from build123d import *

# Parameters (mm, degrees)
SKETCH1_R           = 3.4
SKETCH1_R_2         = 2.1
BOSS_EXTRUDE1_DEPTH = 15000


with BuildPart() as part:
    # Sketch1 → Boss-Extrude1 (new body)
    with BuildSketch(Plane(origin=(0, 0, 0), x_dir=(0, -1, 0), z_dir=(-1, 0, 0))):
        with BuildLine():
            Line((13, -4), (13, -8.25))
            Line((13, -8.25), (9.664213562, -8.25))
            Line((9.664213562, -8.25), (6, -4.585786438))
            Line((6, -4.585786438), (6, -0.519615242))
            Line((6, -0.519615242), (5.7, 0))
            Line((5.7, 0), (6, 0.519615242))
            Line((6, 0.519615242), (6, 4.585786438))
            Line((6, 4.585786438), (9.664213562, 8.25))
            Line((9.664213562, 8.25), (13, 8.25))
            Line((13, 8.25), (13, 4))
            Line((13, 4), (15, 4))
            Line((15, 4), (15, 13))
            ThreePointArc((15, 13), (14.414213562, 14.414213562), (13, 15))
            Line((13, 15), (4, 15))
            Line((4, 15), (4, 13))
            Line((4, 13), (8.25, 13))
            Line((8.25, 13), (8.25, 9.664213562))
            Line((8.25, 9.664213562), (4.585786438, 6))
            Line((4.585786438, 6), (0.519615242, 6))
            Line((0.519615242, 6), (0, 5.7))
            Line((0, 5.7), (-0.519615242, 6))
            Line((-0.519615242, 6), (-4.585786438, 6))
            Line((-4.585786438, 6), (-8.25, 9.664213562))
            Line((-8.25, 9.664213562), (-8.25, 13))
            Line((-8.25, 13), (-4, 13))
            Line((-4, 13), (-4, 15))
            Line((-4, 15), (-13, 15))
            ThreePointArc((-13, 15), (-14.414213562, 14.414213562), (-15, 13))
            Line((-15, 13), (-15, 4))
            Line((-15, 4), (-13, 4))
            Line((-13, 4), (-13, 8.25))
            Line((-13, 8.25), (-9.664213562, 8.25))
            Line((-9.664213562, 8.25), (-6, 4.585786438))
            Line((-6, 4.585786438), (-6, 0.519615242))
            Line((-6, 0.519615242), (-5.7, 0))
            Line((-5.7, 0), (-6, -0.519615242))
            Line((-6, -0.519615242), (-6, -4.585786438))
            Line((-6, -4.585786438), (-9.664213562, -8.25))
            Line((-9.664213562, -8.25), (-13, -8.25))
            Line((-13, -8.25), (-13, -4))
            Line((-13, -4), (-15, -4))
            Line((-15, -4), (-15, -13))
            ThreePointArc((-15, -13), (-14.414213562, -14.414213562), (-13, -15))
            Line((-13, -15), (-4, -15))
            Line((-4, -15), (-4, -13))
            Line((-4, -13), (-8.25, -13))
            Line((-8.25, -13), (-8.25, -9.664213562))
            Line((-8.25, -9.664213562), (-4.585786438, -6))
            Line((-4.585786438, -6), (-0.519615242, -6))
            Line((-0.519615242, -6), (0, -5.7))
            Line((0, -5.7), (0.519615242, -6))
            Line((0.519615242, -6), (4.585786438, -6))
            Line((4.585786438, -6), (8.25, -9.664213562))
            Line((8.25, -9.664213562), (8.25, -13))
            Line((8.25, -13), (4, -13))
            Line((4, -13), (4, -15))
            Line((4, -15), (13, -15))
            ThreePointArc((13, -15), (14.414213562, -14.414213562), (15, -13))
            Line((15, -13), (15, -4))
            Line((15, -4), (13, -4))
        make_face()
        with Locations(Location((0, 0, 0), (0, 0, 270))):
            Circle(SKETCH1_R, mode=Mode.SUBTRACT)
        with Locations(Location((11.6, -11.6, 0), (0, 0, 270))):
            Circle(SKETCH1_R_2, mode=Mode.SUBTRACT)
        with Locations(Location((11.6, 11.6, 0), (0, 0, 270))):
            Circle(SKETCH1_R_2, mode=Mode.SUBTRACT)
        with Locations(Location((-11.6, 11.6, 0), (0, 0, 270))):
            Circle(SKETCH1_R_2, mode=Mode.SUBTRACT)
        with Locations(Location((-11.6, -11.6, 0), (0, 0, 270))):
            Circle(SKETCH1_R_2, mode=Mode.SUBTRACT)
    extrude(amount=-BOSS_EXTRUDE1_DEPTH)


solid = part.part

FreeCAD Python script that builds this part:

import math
import FreeCAD as App
import Part
import Sketcher
Q = App.Units.Quantity

doc = App.newDocument("Part")
body = doc.addObject("PartDesign::Body", "Body")

sketch1 = body.newObject("Sketcher::SketchObject", "Sketch")
sketch1.AttachmentSupport = (doc.getObject("YZ_Plane"), [""])
sketch1.MapMode = "FlatFace"
sketch1.addGeometry([
    Part.LineSegment(App.Vector(-13, -4, 0), App.Vector(-13, -8.2, 0)),
    Part.LineSegment(App.Vector(-13, -8.2, 0), App.Vector(-9.7, -8.2, 0)),
    Part.LineSegment(App.Vector(-9.7, -8.2, 0), App.Vector(-6, -4.6, 0)),
    Part.LineSegment(App.Vector(-6, -4.6, 0), App.Vector(-6, -0.5, 0)),
    Part.LineSegment(App.Vector(-6, -0.5, 0), App.Vector(-5.7, 0, 0)),
    Part.LineSegment(App.Vector(-5.7, 0, 0), App.Vector(-6, 0.5, 0)),
    Part.LineSegment(App.Vector(-6, 0.5, 0), App.Vector(-6, 4.6, 0)),
    Part.LineSegment(App.Vector(-6, 4.6, 0), App.Vector(-9.7, 8.2, 0)),
    Part.LineSegment(App.Vector(-9.7, 8.2, 0), App.Vector(-13, 8.2, 0)),
    Part.LineSegment(App.Vector(-13, 8.2, 0), App.Vector(-13, 4, 0)),
    Part.LineSegment(App.Vector(-13, 4, 0), App.Vector(-15, 4, 0)),
    Part.LineSegment(App.Vector(-15, 4, 0), App.Vector(-15, 13, 0)),
    Part.ArcOfCircle(Part.Circle(App.Vector(-13, 13, 0), App.Vector(0, 0, 1), 2), math.radians(90), math.radians(180)),
    Part.LineSegment(App.Vector(-13, 15, 0), App.Vector(-4, 15, 0)),
    Part.LineSegment(App.Vector(-4, 15, 0), App.Vector(-4, 13, 0)),
    Part.LineSegment(App.Vector(-4, 13, 0), App.Vector(-8.2, 13, 0)),
    Part.LineSegment(App.Vector(-8.2, 13, 0), App.Vector(-8.2, 9.7, 0)),
    Part.LineSegment(App.Vector(-8.2, 9.7, 0), App.Vector(-4.6, 6, 0)),
    Part.LineSegment(App.Vector(-4.6, 6, 0), App.Vector(-0.5, 6, 0)),
    Part.LineSegment(App.Vector(-0.5, 6, 0), App.Vector(0, 5.7, 0)),
    Part.LineSegment(App.Vector(0, 5.7, 0), App.Vector(0.5, 6, 0)),
    Part.LineSegment(App.Vector(0.5, 6, 0), App.Vector(4.6, 6, 0)),
    Part.LineSegment(App.Vector(4.6, 6, 0), App.Vector(8.2, 9.7, 0)),
    Part.LineSegment(App.Vector(8.2, 9.7, 0), App.Vector(8.2, 13, 0)),
    Part.LineSegment(App.Vector(8.2, 13, 0), App.Vector(4, 13, 0)),
    Part.LineSegment(App.Vector(4, 13, 0), App.Vector(4, 15, 0)),
    Part.LineSegment(App.Vector(4, 15, 0), App.Vector(13, 15, 0)),
    Part.ArcOfCircle(Part.Circle(App.Vector(13, 13, 0), App.Vector(0, 0, 1), 2), math.radians(0), math.radians(90)),
    Part.LineSegment(App.Vector(15, 13, 0), App.Vector(15, 4, 0)),
    Part.LineSegment(App.Vector(15, 4, 0), App.Vector(13, 4, 0)),
    Part.LineSegment(App.Vector(13, 4, 0), App.Vector(13, 8.2, 0)),
    Part.LineSegment(App.Vector(13, 8.2, 0), App.Vector(9.7, 8.2, 0)),
    Part.LineSegment(App.Vector(9.7, 8.2, 0), App.Vector(6, 4.6, 0)),
    Part.LineSegment(App.Vector(6, 4.6, 0), App.Vector(6, 0.5, 0)),
    Part.LineSegment(App.Vector(6, 0.5, 0), App.Vector(5.7, 0, 0)),
    Part.LineSegment(App.Vector(5.7, 0, 0), App.Vector(6, -0.5, 0)),
    Part.LineSegment(App.Vector(6, -0.5, 0), App.Vector(6, -4.6, 0)),
    Part.LineSegment(App.Vector(6, -4.6, 0), App.Vector(9.7, -8.2, 0)),
    Part.LineSegment(App.Vector(9.7, -8.2, 0), App.Vector(13, -8.2, 0)),
    Part.LineSegment(App.Vector(13, -8.2, 0), App.Vector(13, -4, 0)),
    Part.LineSegment(App.Vector(13, -4, 0), App.Vector(15, -4, 0)),
    Part.LineSegment(App.Vector(15, -4, 0), App.Vector(15, -13, 0)),
    Part.ArcOfCircle(Part.Circle(App.Vector(13, -13, 0), App.Vector(0, 0, 1), 2), math.radians(-90), math.radians(0)),
    Part.LineSegment(App.Vector(13, -15, 0), App.Vector(4, -15, 0)),
    Part.LineSegment(App.Vector(4, -15, 0), App.Vector(4, -13, 0)),
    Part.LineSegment(App.Vector(4, -13, 0), App.Vector(8.2, -13, 0)),
    Part.LineSegment(App.Vector(8.2, -13, 0), App.Vector(8.2, -9.7, 0)),
    Part.LineSegment(App.Vector(8.2, -9.7, 0), App.Vector(4.6, -6, 0)),
    Part.LineSegment(App.Vector(4.6, -6, 0), App.Vector(0.5, -6, 0)),
    Part.LineSegment(App.Vector(0.5, -6, 0), App.Vector(0, -5.7, 0)),
    Part.LineSegment(App.Vector(0, -5.7, 0), App.Vector(-0.5, -6, 0)),
    Part.LineSegment(App.Vector(-0.5, -6, 0), App.Vector(-4.6, -6, 0)),
    Part.LineSegment(App.Vector(-4.6, -6, 0), App.Vector(-8.2, -9.7, 0)),
    Part.LineSegment(App.Vector(-8.2, -9.7, 0), App.Vector(-8.2, -13, 0)),
    Part.LineSegment(App.Vector(-8.2, -13, 0), App.Vector(-4, -13, 0)),
    Part.LineSegment(App.Vector(-4, -13, 0), App.Vector(-4, -15, 0)),
    Part.LineSegment(App.Vector(-4, -15, 0), App.Vector(-13, -15, 0)),
    Part.ArcOfCircle(Part.Circle(App.Vector(-13, -13, 0), App.Vector(0, 0, 1), 2), math.radians(-180), math.radians(-90)),
    Part.LineSegment(App.Vector(-15, -13, 0), App.Vector(-15, -4, 0)),
    Part.LineSegment(App.Vector(-15, -4, 0), App.Vector(-13, -4, 0)),
    Part.Circle(App.Vector(11.6, -11.6, 0), App.Vector(0, 0, 1), 2.1),
    Part.Circle(App.Vector(-11.6, -11.6, 0), App.Vector(0, 0, 1), 2.1),
    Part.Circle(App.Vector(11.6, 11.6, 0), App.Vector(0, 0, 1), 2.1),
    Part.Circle(App.Vector(0, 0, 0), App.Vector(0, 0, 1), 3.4),
    Part.Circle(App.Vector(-11.6, 11.6, 0), App.Vector(0, 0, 1), 2.1),
], False)
sketch1.addConstraint([
    Sketcher.Constraint("Coincident", 0, 2, 1, 1),
    Sketcher.Constraint("Coincident", 1, 2, 2, 1),
    Sketcher.Constraint("Coincident", 2, 2, 3, 1),
    Sketcher.Constraint("Coincident", 3, 2, 4, 1),
    Sketcher.Constraint("Coincident", 4, 2, 5, 1),
    Sketcher.Constraint("Coincident", 5, 2, 6, 1),
    Sketcher.Constraint("Coincident", 6, 2, 7, 1),
    Sketcher.Constraint("Coincident", 7, 2, 8, 1),
    Sketcher.Constraint("Coincident", 8, 2, 9, 1),
    Sketcher.Constraint("Coincident", 9, 2, 10, 1),
    Sketcher.Constraint("Coincident", 10, 2, 11, 1),
    Sketcher.Constraint("Tangent", 11, 2, 12, 2),
    Sketcher.Constraint("Tangent", 12, 1, 13, 1),
    Sketcher.Constraint("Coincident", 13, 2, 14, 1),
    Sketcher.Constraint("Coincident", 14, 2, 15, 1),
    Sketcher.Constraint("Coincident", 15, 2, 16, 1),
    Sketcher.Constraint("Coincident", 16, 2, 17, 1),
    Sketcher.Constraint("Coincident", 17, 2, 18, 1),
    Sketcher.Constraint("Coincident", 18, 2, 19, 1),
    Sketcher.Constraint("Coincident", 19, 2, 20, 1),
    Sketcher.Constraint("Coincident", 20, 2, 21, 1),
    Sketcher.Constraint("Coincident", 21, 2, 22, 1),
    Sketcher.Constraint("Coincident", 22, 2, 23, 1),
    Sketcher.Constraint("Coincident", 23, 2, 24, 1),
    Sketcher.Constraint("Coincident", 24, 2, 25, 1),
    Sketcher.Constraint("Coincident", 25, 2, 26, 1),
    Sketcher.Constraint("Tangent", 26, 2, 27, 2),
    Sketcher.Constraint("Tangent", 27, 1, 28, 1),
    Sketcher.Constraint("Coincident", 28, 2, 29, 1),
    Sketcher.Constraint("Coincident", 29, 2, 30, 1),
    Sketcher.Constraint("Coincident", 30, 2, 31, 1),
    Sketcher.Constraint("Coincident", 31, 2, 32, 1),
    Sketcher.Constraint("Coincident", 32, 2, 33, 1),
    Sketcher.Constraint("Coincident", 33, 2, 34, 1),
    Sketcher.Constraint("Coincident", 34, 2, 35, 1),
    Sketcher.Constraint("Coincident", 35, 2, 36, 1),
    Sketcher.Constraint("Coincident", 36, 2, 37, 1),
    Sketcher.Constraint("Coincident", 37, 2, 38, 1),
    Sketcher.Constraint("Coincident", 38, 2, 39, 1),
    Sketcher.Constraint("Coincident", 39, 2, 40, 1),
    Sketcher.Constraint("Coincident", 40, 2, 41, 1),
    Sketcher.Constraint("Tangent", 41, 2, 42, 2),
    Sketcher.Constraint("Tangent", 42, 1, 43, 1),
    Sketcher.Constraint("Coincident", 43, 2, 44, 1),
    Sketcher.Constraint("Coincident", 44, 2, 45, 1),
    Sketcher.Constraint("Coincident", 45, 2, 46, 1),
    Sketcher.Constraint("Coincident", 46, 2, 47, 1),
    Sketcher.Constraint("Coincident", 47, 2, 48, 1),
    Sketcher.Constraint("Coincident", 48, 2, 49, 1),
    Sketcher.Constraint("Coincident", 49, 2, 50, 1),
    Sketcher.Constraint("Coincident", 50, 2, 51, 1),
    Sketcher.Constraint("Coincident", 51, 2, 52, 1),
    Sketcher.Constraint("Coincident", 52, 2, 53, 1),
    Sketcher.Constraint("Coincident", 53, 2, 54, 1),
    Sketcher.Constraint("Coincident", 54, 2, 55, 1),
    Sketcher.Constraint("Coincident", 55, 2, 56, 1),
    Sketcher.Constraint("Tangent", 56, 2, 57, 2),
    Sketcher.Constraint("Tangent", 57, 1, 58, 1),
    Sketcher.Constraint("Coincident", 58, 2, 59, 1),
    Sketcher.Constraint("Coincident", 59, 2, 0, 1),
    Sketcher.Constraint("Vertical", 0),
    Sketcher.Constraint("Horizontal", 1),
    Sketcher.Constraint("Vertical", 3),
    Sketcher.Constraint("Vertical", 6),
    Sketcher.Constraint("Horizontal", 8),
    Sketcher.Constraint("Vertical", 9),
    Sketcher.Constraint("Horizontal", 10),
    Sketcher.Constraint("Vertical", 11),
    Sketcher.Constraint("Horizontal", 13),
    Sketcher.Constraint("Vertical", 14),
    Sketcher.Constraint("Horizontal", 15),
    Sketcher.Constraint("Vertical", 16),
    Sketcher.Constraint("Horizontal", 18),
    Sketcher.Constraint("Horizontal", 21),
    Sketcher.Constraint("Vertical", 23),
    Sketcher.Constraint("Horizontal", 24),
    Sketcher.Constraint("Vertical", 25),
    Sketcher.Constraint("Horizontal", 26),
    Sketcher.Constraint("Vertical", 28),
    Sketcher.Constraint("Horizontal", 29),
    Sketcher.Constraint("Vertical", 30),
    Sketcher.Constraint("Horizontal", 31),
    Sketcher.Constraint("Vertical", 33),
    Sketcher.Constraint("Vertical", 36),
    Sketcher.Constraint("Horizontal", 38),
    Sketcher.Constraint("Vertical", 39),
    Sketcher.Constraint("Horizontal", 40),
    Sketcher.Constraint("Vertical", 41),
    Sketcher.Constraint("Horizontal", 43),
    Sketcher.Constraint("Vertical", 44),
    Sketcher.Constraint("Horizontal", 45),
    Sketcher.Constraint("Vertical", 46),
    Sketcher.Constraint("Horizontal", 48),
    Sketcher.Constraint("Horizontal", 51),
    Sketcher.Constraint("Vertical", 53),
    Sketcher.Constraint("Horizontal", 54),
    Sketcher.Constraint("Vertical", 55),
    Sketcher.Constraint("Horizontal", 56),
    Sketcher.Constraint("Vertical", 58),
    Sketcher.Constraint("Horizontal", 59),
    Sketcher.Constraint("Coincident", 63, 3, -1, 1),
    Sketcher.Constraint("Equal", 12, 27),
    Sketcher.Constraint("Equal", 27, 42),
    Sketcher.Constraint("Equal", 42, 57),
    Sketcher.Constraint("Equal", 60, 61),
    Sketcher.Constraint("Equal", 61, 62),
    Sketcher.Constraint("Equal", 62, 64),
    Sketcher.Constraint("Symmetric", 12, 3, 42, 3, -1, 1),
    Sketcher.Constraint("Symmetric", 27, 3, 57, 3, -1, 1),
    Sketcher.Constraint("Symmetric", 61, 3, 62, 3, -1, 1),
    Sketcher.Constraint("Symmetric", 60, 3, 64, 3, -1, 1),
    Sketcher.Constraint("Symmetric", 0, 2, 30, 2, -1, 1),
    Sketcher.Constraint("Symmetric", 2, 2, 32, 2, -1, 1),
    Sketcher.Constraint("Symmetric", 4, 2, 34, 2, -1, 1),
    Sketcher.Constraint("Symmetric", 5, 2, 35, 2, -1, 1),
    Sketcher.Constraint("Symmetric", 7, 2, 37, 2, -1, 1),
    Sketcher.Constraint("Symmetric", 9, 2, 39, 2, -1, 1),
    Sketcher.Constraint("Symmetric", 14, 2, 44, 2, -1, 1),
    Sketcher.Constraint("Symmetric", 16, 2, 46, 2, -1, 1),
    Sketcher.Constraint("Symmetric", 17, 2, 47, 2, -1, 1),
    Sketcher.Constraint("Symmetric", 19, 2, 49, 2, -1, 1),
    Sketcher.Constraint("Symmetric", 20, 2, 50, 2, -1, 1),
    Sketcher.Constraint("Symmetric", 22, 2, 52, 2, -1, 1),
    Sketcher.Constraint("Symmetric", 24, 2, 54, 2, -1, 1),
    Sketcher.Constraint("Symmetric", 12, 3, 27, 3, -2),
    Sketcher.Constraint("Symmetric", 60, 3, 61, 3, -2),
    Sketcher.Constraint("Symmetric", 18, 2, 20, 2, -2),
    Sketcher.Constraint("Symmetric", 16, 2, 22, 2, -2),
    Sketcher.Constraint("Symmetric", 14, 2, 24, 2, -2),
    Sketcher.Constraint("Symmetric", 9, 2, 29, 2, -2),
    Sketcher.Constraint("Symmetric", 7, 2, 31, 2, -2),
    Sketcher.Constraint("Symmetric", 6, 2, 32, 2, -2),
    Sketcher.Constraint("PointOnObject", 4, 2, -1),
    Sketcher.Constraint("PointOnObject", 19, 2, -2),
    Sketcher.Constraint("Perpendicular", 2, 7),
    Sketcher.Constraint("Parallel", 7, 17),
    Sketcher.Constraint("Perpendicular", 4, 19),
    Sketcher.Constraint("Perpendicular", 5, 20),
    Sketcher.Constraint("Perpendicular", 17, 22),
    Sketcher.Constraint("Parallel", 22, 32),
    Sketcher.Constraint("Perpendicular", 19, 34),
    Sketcher.Constraint("Perpendicular", 32, 37),
    Sketcher.Constraint("Perpendicular", 34, 49),
    Sketcher.Constraint("Perpendicular", 47, 52),
    Sketcher.Constraint("Horizontal", 11, 2, 14, 2),
    Sketcher.Constraint("Horizontal", 40, 2, 58, 2),
    Sketcher.Constraint("Vertical", 57, 3, 0, 2),
    Sketcher.Constraint("Equal", 54, 0),
    Sketcher.Constraint("Equal", 51, 3),
    Sketcher.Constraint("Equal", 56, 11),
    Sketcher.Constraint("Equal", 38, 16),
    Sketcher.Constraint("Equal", 7, 17),
    Sketcher.Constraint("Equal", 5, 19),
    Sketcher.Constraint("Radius", 12, Q("2 mm")),
    Sketcher.Constraint("Diameter", 60, Q("4.2 mm")),
    Sketcher.Constraint("Diameter", 63, Q("6.8 mm")),
    Sketcher.Constraint("DistanceX", 13, 1, 13, 2, Q("9 mm")),
    Sketcher.Constraint("Angle", 4, Q("60 deg")),
    Sketcher.Constraint("DistanceX", 12, 3, -1, 1, Q("13 mm")),
    Sketcher.Constraint("DistanceX", 2, 2, -1, 1, Q("6 mm")),
    Sketcher.Constraint("Distance", 4, Q("0.6 mm")),
    Sketcher.Constraint("DistanceX", 15, 2, 15, 1, Q("4.25 mm")),
    Sketcher.Constraint("DistanceX", -1, 1, 60, 3, Q("11.6 mm")),
    Sketcher.Constraint("DistanceY", 60, 3, -1, 1, Q("11.6 mm")),
    Sketcher.Constraint("DistanceX", 18, 1, 18, 2, Q("4.066171 mm")),
])
pad1 = body.newObject("PartDesign::Pad", "Pad")
pad1.Profile = sketch1
pad1.Length = 15000

doc.recompute()
